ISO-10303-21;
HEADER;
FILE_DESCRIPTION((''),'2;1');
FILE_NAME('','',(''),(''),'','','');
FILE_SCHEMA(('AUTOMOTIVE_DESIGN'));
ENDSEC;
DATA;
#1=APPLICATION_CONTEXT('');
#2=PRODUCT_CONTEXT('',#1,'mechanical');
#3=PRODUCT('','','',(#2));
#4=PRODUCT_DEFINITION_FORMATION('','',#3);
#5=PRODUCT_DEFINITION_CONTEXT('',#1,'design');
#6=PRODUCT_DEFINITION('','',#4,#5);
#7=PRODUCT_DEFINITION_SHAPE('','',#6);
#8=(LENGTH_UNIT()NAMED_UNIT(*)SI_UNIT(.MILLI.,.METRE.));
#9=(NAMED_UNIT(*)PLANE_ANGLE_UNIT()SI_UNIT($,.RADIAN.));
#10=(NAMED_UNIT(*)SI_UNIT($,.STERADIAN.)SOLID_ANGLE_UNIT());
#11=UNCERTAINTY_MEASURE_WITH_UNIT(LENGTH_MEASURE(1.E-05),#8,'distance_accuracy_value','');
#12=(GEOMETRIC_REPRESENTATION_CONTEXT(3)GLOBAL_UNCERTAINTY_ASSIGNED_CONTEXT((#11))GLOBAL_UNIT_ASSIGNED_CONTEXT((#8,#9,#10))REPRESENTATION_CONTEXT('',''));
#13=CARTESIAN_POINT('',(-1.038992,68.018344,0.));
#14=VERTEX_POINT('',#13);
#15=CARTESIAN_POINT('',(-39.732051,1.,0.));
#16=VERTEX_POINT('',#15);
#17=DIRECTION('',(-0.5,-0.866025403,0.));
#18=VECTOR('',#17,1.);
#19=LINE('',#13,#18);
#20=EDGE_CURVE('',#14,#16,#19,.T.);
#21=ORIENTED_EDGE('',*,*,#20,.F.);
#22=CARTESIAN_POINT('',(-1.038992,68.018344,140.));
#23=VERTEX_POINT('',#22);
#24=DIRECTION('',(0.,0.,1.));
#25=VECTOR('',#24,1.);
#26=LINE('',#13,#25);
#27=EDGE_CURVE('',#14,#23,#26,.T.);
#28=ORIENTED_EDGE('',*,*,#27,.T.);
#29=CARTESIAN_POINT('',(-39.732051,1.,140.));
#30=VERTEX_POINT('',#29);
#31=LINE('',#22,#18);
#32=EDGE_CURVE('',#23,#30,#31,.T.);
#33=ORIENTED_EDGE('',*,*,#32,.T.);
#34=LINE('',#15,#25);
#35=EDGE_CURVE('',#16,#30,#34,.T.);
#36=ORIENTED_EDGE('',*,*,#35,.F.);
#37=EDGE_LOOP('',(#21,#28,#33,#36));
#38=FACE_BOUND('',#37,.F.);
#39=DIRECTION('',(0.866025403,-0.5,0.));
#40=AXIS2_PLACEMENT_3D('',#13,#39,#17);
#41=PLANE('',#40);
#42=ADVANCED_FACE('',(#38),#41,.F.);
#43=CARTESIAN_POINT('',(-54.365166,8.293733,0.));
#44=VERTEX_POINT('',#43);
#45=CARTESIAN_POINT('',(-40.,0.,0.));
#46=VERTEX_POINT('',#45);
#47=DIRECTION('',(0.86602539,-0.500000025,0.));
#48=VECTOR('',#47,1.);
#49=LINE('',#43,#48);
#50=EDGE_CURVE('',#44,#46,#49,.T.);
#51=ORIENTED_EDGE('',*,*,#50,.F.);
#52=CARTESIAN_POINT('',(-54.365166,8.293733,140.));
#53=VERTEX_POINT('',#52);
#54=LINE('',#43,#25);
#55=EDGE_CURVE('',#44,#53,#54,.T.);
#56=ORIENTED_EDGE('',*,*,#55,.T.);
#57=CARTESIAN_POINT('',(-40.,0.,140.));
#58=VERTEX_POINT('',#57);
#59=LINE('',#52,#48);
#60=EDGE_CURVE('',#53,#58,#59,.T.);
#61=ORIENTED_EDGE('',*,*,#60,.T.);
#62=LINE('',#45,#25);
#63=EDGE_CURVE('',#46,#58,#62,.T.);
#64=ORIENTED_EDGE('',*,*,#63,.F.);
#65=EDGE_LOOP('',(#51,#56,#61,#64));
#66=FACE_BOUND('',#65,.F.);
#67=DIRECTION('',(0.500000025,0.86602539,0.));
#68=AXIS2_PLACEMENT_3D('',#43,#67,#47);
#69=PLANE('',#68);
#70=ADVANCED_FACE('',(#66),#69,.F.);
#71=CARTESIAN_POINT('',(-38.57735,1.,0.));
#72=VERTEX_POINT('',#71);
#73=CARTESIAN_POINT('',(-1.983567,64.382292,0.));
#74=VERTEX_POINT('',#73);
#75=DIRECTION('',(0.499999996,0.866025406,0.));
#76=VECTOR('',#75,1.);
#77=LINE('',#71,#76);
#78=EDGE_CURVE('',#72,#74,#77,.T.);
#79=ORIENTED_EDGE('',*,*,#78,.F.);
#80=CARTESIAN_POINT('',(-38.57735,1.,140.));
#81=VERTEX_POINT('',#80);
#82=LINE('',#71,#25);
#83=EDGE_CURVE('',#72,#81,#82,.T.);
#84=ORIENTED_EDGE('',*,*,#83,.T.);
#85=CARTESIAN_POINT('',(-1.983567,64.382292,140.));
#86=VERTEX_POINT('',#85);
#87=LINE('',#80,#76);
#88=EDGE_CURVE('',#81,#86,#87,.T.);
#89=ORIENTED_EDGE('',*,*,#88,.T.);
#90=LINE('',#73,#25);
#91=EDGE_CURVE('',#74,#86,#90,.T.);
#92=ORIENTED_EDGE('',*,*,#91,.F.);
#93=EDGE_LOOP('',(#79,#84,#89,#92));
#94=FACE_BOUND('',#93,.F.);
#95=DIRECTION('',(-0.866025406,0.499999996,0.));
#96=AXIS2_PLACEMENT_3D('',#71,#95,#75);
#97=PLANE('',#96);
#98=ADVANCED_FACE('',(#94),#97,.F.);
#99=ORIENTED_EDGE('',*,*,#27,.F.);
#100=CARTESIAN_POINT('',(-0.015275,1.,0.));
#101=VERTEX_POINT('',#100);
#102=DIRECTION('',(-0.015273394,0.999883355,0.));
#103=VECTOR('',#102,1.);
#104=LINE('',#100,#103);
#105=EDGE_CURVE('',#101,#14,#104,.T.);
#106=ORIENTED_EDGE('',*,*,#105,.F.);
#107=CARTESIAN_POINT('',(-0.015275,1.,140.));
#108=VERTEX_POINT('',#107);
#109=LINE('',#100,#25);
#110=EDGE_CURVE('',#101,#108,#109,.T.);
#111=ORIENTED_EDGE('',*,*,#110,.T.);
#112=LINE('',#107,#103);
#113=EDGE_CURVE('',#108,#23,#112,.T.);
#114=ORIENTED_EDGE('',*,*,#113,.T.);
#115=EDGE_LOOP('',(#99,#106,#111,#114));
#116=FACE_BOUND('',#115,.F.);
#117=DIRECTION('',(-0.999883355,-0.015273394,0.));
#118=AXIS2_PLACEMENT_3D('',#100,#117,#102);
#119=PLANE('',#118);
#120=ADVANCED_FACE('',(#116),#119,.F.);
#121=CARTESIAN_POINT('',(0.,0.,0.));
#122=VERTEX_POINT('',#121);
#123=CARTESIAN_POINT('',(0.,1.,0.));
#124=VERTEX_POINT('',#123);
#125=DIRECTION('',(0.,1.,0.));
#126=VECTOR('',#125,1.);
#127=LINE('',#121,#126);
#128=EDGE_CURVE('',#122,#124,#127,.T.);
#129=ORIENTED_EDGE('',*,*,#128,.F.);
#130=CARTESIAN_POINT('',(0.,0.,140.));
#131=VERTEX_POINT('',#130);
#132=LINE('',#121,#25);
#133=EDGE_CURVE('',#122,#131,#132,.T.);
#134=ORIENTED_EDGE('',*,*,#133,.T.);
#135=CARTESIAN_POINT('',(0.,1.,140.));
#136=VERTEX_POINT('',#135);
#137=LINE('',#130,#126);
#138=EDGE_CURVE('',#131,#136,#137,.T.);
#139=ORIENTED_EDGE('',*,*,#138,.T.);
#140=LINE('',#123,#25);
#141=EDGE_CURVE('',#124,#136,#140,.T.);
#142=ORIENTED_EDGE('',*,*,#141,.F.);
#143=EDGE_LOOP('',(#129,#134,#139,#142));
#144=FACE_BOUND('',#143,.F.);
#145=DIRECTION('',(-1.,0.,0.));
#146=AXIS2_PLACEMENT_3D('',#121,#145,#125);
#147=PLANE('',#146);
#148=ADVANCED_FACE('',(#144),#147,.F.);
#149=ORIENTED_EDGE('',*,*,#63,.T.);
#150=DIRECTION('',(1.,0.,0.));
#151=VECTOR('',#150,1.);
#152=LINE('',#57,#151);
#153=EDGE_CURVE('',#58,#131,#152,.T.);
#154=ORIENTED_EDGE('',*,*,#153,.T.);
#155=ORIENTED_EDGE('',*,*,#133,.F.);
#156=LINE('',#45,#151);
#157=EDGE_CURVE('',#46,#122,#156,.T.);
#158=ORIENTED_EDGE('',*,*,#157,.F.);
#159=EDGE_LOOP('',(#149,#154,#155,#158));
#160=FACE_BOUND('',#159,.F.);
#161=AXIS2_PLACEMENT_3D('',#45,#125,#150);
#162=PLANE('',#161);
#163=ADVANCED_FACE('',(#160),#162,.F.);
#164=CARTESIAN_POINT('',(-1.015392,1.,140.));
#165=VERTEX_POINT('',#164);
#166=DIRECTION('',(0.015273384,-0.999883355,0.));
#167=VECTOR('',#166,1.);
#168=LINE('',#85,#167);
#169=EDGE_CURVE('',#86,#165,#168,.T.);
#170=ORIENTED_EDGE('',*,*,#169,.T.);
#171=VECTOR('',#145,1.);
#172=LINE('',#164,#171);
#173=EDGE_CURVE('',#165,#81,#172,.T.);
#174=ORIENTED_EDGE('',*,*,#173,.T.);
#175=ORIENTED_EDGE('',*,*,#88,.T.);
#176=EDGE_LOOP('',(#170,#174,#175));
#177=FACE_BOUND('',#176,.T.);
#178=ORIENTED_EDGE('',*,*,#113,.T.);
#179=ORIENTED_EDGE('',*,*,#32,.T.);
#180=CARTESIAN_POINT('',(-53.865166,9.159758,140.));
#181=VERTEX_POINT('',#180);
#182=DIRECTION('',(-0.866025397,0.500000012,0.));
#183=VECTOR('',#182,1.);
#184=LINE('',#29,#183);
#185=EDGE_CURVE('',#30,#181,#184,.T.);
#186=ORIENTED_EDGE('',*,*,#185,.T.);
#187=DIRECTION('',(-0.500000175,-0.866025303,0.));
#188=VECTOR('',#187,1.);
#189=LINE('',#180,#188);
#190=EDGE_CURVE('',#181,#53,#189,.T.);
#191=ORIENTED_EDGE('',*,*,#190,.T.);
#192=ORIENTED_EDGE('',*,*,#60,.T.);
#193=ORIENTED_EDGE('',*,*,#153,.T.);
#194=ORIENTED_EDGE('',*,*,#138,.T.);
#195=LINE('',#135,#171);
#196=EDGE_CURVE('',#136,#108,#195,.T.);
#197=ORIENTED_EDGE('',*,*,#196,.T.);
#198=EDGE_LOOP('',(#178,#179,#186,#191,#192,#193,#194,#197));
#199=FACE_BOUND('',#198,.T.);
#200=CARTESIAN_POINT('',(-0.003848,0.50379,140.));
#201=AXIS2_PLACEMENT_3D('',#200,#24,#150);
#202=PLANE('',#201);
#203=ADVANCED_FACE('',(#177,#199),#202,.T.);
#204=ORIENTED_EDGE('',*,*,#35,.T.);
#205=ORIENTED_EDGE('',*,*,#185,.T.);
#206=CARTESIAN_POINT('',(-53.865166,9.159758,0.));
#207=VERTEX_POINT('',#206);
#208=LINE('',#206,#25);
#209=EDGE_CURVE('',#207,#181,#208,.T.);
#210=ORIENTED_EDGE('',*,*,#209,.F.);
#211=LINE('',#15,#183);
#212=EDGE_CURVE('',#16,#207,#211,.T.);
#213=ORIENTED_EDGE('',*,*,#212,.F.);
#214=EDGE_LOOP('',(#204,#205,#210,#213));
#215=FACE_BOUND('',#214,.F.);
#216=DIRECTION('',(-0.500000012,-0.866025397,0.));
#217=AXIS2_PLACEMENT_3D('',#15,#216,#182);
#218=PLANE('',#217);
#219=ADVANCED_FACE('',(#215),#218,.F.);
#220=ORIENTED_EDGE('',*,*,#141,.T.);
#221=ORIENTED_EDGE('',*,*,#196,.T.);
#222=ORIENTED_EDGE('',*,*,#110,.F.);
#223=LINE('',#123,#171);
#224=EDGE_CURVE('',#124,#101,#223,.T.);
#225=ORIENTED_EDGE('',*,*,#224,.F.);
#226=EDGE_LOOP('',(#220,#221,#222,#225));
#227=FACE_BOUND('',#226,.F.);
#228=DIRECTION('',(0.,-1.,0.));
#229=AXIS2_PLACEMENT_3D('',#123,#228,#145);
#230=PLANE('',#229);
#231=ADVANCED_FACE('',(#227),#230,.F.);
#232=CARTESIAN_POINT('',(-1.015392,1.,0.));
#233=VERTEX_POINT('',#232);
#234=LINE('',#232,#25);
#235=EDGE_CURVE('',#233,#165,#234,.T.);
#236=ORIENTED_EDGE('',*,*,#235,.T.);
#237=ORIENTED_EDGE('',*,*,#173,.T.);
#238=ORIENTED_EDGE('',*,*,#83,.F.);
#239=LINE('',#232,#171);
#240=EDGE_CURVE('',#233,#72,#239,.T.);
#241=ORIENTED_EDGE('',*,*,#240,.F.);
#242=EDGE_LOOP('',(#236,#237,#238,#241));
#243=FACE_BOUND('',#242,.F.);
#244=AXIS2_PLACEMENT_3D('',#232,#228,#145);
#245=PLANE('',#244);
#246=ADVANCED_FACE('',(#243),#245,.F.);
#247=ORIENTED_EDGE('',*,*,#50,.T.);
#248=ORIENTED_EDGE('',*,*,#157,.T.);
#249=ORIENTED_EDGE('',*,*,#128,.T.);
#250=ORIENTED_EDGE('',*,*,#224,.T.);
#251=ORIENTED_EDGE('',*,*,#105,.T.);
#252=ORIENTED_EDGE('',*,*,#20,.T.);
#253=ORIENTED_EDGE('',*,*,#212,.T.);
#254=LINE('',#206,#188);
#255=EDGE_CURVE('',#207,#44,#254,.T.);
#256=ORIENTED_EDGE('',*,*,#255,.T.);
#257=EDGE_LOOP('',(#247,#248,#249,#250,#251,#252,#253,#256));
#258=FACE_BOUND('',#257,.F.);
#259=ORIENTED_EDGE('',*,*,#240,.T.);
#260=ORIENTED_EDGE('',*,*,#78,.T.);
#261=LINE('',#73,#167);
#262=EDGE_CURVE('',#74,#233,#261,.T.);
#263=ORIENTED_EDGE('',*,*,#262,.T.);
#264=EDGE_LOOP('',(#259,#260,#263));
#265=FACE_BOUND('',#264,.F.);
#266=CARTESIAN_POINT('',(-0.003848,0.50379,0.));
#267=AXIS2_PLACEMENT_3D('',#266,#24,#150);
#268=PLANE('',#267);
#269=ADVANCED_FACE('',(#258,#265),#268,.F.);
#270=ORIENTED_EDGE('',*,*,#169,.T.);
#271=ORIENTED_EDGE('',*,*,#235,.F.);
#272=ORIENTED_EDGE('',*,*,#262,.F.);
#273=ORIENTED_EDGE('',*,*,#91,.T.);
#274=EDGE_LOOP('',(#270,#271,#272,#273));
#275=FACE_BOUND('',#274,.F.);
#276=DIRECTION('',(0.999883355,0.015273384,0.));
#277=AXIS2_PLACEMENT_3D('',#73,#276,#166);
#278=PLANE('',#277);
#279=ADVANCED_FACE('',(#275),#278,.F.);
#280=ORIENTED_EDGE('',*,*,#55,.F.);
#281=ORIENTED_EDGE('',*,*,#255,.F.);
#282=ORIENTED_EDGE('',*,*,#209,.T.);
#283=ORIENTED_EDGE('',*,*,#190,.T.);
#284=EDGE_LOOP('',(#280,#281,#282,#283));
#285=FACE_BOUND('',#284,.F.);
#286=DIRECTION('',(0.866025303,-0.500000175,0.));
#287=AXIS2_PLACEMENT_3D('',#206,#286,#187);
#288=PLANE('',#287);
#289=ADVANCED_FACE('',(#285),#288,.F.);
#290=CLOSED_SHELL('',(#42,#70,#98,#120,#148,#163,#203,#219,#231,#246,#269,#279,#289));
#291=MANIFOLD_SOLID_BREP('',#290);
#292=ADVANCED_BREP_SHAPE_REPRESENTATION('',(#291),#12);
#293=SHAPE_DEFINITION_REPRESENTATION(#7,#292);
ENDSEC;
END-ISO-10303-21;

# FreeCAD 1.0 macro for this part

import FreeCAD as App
import Part
import Sketcher
Q = App.Units.Quantity

doc = App.newDocument("Part")
body = doc.addObject("PartDesign::Body", "Body")

# Sketch on XY plane
sketch1 = doc.addObject("Sketcher::SketchObject", "Sketch")
body.addObject(sketch1)
sketch1.AttachmentSupport = (doc.XY_Plane, [""])
sketch1.MapMode = "FlatFace"
sketch1.addGeometry([
    Part.LineSegment(App.Vector(0, 0, 0), App.Vector(0, 1, 0)),  # 0
    Part.LineSegment(App.Vector(0, 1, 0), App.Vector(-0.015, 1, 0)),  # 1
    Part.LineSegment(App.Vector(-0.015, 1, 0), App.Vector(-1.039, 68.018, 0)),  # 2
    Part.LineSegment(App.Vector(-1.039, 68.018, 0), App.Vector(-39.732, 1, 0)),  # 3
    Part.LineSegment(App.Vector(-39.732, 1, 0), App.Vector(-53.865, 9.16, 0)),  # 4
    Part.LineSegment(App.Vector(-53.865, 9.16, 0), App.Vector(-54.365, 8.294, 0)),  # 5
    Part.LineSegment(App.Vector(-54.365, 8.294, 0), App.Vector(-40, 0, 0)),  # 6
    Part.LineSegment(App.Vector(-40, 0, 0), App.Vector(0, 0, 0)),  # 7
    Part.LineSegment(App.Vector(-1.984, 64.382, 0), App.Vector(-1.015, 1, 0)),  # 8
    Part.LineSegment(App.Vector(-1.015, 1, 0), App.Vector(-38.577, 1, 0)),  # 9
    Part.LineSegment(App.Vector(-38.577, 1, 0), App.Vector(-1.984, 64.382, 0)),  # 10
], False)
sketch1.addConstraint([
    Sketcher.Constraint("Coincident", 0, 2, 1, 1),
    Sketcher.Constraint("Coincident", 1, 2, 2, 1),
    Sketcher.Constraint("Coincident", 2, 2, 3, 1),
    Sketcher.Constraint("Coincident", 3, 2, 4, 1),
    Sketcher.Constraint("Coincident", 4, 2, 5, 1),
    Sketcher.Constraint("Coincident", 5, 2, 6, 1),
    Sketcher.Constraint("Coincident", 6, 2, 7, 1),
    Sketcher.Constraint("Coincident", 7, 2, 0, 1),
    Sketcher.Constraint("Coincident", 8, 2, 9, 1),
    Sketcher.Constraint("Coincident", 9, 2, 10, 1),
    Sketcher.Constraint("Coincident", 10, 2, 8, 1),
    Sketcher.Constraint("Vertical", 0),
    Sketcher.Constraint("Horizontal", 1),
    Sketcher.Constraint("Horizontal", 7),
    Sketcher.Constraint("Horizontal", 9),
    Sketcher.Constraint("Coincident", 7, 2, -1, 1),
    Sketcher.Constraint("Perpendicular", 3, 4),
    Sketcher.Constraint("Perpendicular", 4, 5),
    Sketcher.Constraint("Perpendicular", 5, 6),
    Sketcher.Constraint("Parallel", 2, 8),
    Sketcher.Constraint("Perpendicular", 6, 10),
    Sketcher.Constraint("Horizontal", 1, 2, 3, 2),
    Sketcher.Constraint("Horizontal", 3, 2, 8, 2),
    Sketcher.Constraint("DistanceX", 7, 1, 7, 2, 40.0),
    Sketcher.Constraint("DistanceY", 0, 1, 0, 2, 1.0),
    Sketcher.Constraint("Angle", 3, Q("-120 deg")),
    Sketcher.Constraint("Distance", 5, 1.0),
    Sketcher.Constraint("DistanceX", 9, 2, 9, 1, 37.561958),
    Sketcher.Constraint("DistanceX", 3, 2, 9, 2, 1.154701),
    Sketcher.Constraint("DistanceX", 1, 2, 1, 1, 0.015275),
    Sketcher.Constraint("DistanceX", 2, 2, -1, 1, 1.038992),
    Sketcher.Constraint("DistanceX", 4, 2, 1, 2, 53.849891),
])
pad1 = doc.addObject("PartDesign::Pad", "Pad")
body.addObject(pad1)
pad1.Profile = sketch1
pad1.Length = 140

doc.recompute()
